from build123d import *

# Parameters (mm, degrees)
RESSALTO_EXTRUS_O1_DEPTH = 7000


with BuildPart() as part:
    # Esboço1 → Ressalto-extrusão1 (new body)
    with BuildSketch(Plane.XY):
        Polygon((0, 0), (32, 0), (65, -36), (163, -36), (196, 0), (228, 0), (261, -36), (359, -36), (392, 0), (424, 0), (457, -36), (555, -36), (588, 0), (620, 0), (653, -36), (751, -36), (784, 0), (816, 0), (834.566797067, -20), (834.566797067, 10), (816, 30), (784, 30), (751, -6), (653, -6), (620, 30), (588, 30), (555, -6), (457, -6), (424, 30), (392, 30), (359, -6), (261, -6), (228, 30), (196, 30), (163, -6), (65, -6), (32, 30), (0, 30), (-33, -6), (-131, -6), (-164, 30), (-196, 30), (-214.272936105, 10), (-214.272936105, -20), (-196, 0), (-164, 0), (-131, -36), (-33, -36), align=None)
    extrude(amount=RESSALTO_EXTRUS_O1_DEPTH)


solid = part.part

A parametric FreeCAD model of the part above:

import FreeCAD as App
import Part
import Sketcher
from FreeCAD import Vector
Q = App.Units.Quantity

doc = App.newDocument("Part")
body = doc.addObject("PartDesign::Body", "Body")

sketch1 = body.newObject("Sketcher::SketchObject", "Sketch")
sketch1.AttachmentSupport = (doc.getObject("XY_Plane"), [""])
sketch1.MapMode = "FlatFace"
sketch1.addGeometry([
    Part.LineSegment(Vector(0, 0, 0), Vector(32, 0, 0)),
    Part.LineSegment(Vector(32, 0, 0), Vector(65, -36, 0)),
    Part.LineSegment(Vector(65, -36, 0), Vector(163, -36, 0)),
    Part.LineSegment(Vector(163, -36, 0), Vector(196, 0, 0)),
    Part.LineSegment(Vector(196, 0, 0), Vector(228, 0, 0)),
    Part.LineSegment(Vector(228, 0, 0), Vector(261, -36, 0)),
    Part.LineSegment(Vector(261, -36, 0), Vector(359, -36, 0)),
    Part.LineSegment(Vector(359, -36, 0), Vector(392, 0, 0)),
    Part.LineSegment(Vector(392, 0, 0), Vector(424, 0, 0)),
    Part.LineSegment(Vector(424, 0, 0), Vector(457, -36, 0)),
    Part.LineSegment(Vector(457, -36, 0), Vector(555, -36, 0)),
    Part.LineSegment(Vector(555, -36, 0), Vector(588, 0, 0)),
    Part.LineSegment(Vector(588, 0, 0), Vector(620, 0, 0)),
    Part.LineSegment(Vector(620, 0, 0), Vector(653, -36, 0)),
    Part.LineSegment(Vector(653, -36, 0), Vector(751, -36, 0)),
    Part.LineSegment(Vector(751, -36, 0), Vector(784, 0, 0)),
    Part.LineSegment(Vector(784, 0, 0), Vector(816, 0, 0)),
    Part.LineSegment(Vector(816, 0, 0), Vector(835, -20, 0)),
    Part.LineSegment(Vector(835, -20, 0), Vector(835, 10, 0)),
    Part.LineSegment(Vector(835, 10, 0), Vector(816, 30, 0)),
    Part.LineSegment(Vector(816, 30, 0), Vector(784, 30, 0)),
    Part.LineSegment(Vector(784, 30, 0), Vector(751, -6, 0)),
    Part.LineSegment(Vector(751, -6, 0), Vector(653, -6, 0)),
    Part.LineSegment(Vector(653, -6, 0), Vector(620, 30, 0)),
    Part.LineSegment(Vector(620, 30, 0), Vector(588, 30, 0)),
    Part.LineSegment(Vector(588, 30, 0), Vector(555, -6, 0)),
    Part.LineSegment(Vector(555, -6, 0), Vector(457, -6, 0)),
    Part.LineSegment(Vector(457, -6, 0), Vector(424, 30, 0)),
    Part.LineSegment(Vector(424, 30, 0), Vector(392, 30, 0)),
    Part.LineSegment(Vector(392, 30, 0), Vector(359, -6, 0)),
    Part.LineSegment(Vector(359, -6, 0), Vector(261, -6, 0)),
    Part.LineSegment(Vector(261, -6, 0), Vector(228, 30, 0)),
    Part.LineSegment(Vector(228, 30, 0), Vector(196, 30, 0)),
    Part.LineSegment(Vector(196, 30, 0), Vector(163, -6, 0)),
    Part.LineSegment(Vector(163, -6, 0), Vector(65, -6, 0)),
    Part.LineSegment(Vector(65, -6, 0), Vector(32, 30, 0)),
    Part.LineSegment(Vector(32, 30, 0), Vector(0, 30, 0)),
    Part.LineSegment(Vector(0, 30, 0), Vector(-33, -6, 0)),
    Part.LineSegment(Vector(-33, -6, 0), Vector(-131, -6, 0)),
    Part.LineSegment(Vector(-131, -6, 0), Vector(-164, 30, 0)),
    Part.LineSegment(Vector(-164, 30, 0), Vector(-196, 30, 0)),
    Part.LineSegment(Vector(-196, 30, 0), Vector(-214, 10, 0)),
    Part.LineSegment(Vector(-214, 10, 0), Vector(-214, -20, 0)),
    Part.LineSegment(Vector(-214, -20, 0), Vector(-196, 0, 0)),
    Part.LineSegment(Vector(-196, 0, 0), Vector(-164, 0, 0)),
    Part.LineSegment(Vector(-164, 0, 0), Vector(-131, -36, 0)),
    Part.LineSegment(Vector(-131, -36, 0), Vector(-33, -36, 0)),
    Part.LineSegment(Vector(-33, -36, 0), Vector(0, 0, 0)),
], False)
sketch1.addConstraint([
    Sketcher.Constraint("Coincident", 0, 2, 1, 1),
    Sketcher.Constraint("Coincident", 1, 2, 2, 1),
    Sketcher.Constraint("Coincident", 2, 2, 3, 1),
    Sketcher.Constraint("Coincident", 3, 2, 4, 1),
    Sketcher.Constraint("Coincident", 4, 2, 5, 1),
    Sketcher.Constraint("Coincident", 5, 2, 6, 1),
    Sketcher.Constraint("Coincident", 6, 2, 7, 1),
    Sketcher.Constraint("Coincident", 7, 2, 8, 1),
    Sketcher.Constraint("Coincident", 8, 2, 9, 1),
    Sketcher.Constraint("Coincident", 9, 2, 10, 1),
    Sketcher.Constraint("Coincident", 10, 2, 11, 1),
    Sketcher.Constraint("Coincident", 11, 2, 12, 1),
    Sketcher.Constraint("Coincident", 12, 2, 13, 1),
    Sketcher.Constraint("Coincident", 13, 2, 14, 1),
    Sketcher.Constraint("Coincident", 14, 2, 15, 1),
    Sketcher.Constraint("Coincident", 15, 2, 16, 1),
    Sketcher.Constraint("Coincident", 16, 2, 17, 1),
    Sketcher.Constraint("Coincident", 17, 2, 18, 1),
    Sketcher.Constraint("Coincident", 18, 2, 19, 1),
    Sketcher.Constraint("Coincident", 19, 2, 20, 1),
    Sketcher.Constraint("Coincident", 20, 2, 21, 1),
    Sketcher.Constraint("Coincident", 21, 2, 22, 1),
    Sketcher.Constraint("Coincident", 22, 2, 23, 1),
    Sketcher.Constraint("Coincident", 23, 2, 24, 1),
    Sketcher.Constraint("Coincident", 24, 2, 25, 1),
    Sketcher.Constraint("Coincident", 25, 2, 26, 1),
    Sketcher.Constraint("Coincident", 26, 2, 27, 1),
    Sketcher.Constraint("Coincident", 27, 2, 28, 1),
    Sketcher.Constraint("Coincident", 28, 2, 29, 1),
    Sketcher.Constraint("Coincident", 29, 2, 30, 1),
    Sketcher.Constraint("Coincident", 30, 2, 31, 1),
    Sketcher.Constraint("Coincident", 31, 2, 32, 1),
    Sketcher.Constraint("Coincident", 32, 2, 33, 1),
    Sketcher.Constraint("Coincident", 33, 2, 34, 1),
    Sketcher.Constraint("Coincident", 34, 2, 35, 1),
    Sketcher.Constraint("Coincident", 35, 2, 36, 1),
    Sketcher.Constraint("Coincident", 36, 2, 37, 1),
    Sketcher.Constraint("Coincident", 37, 2, 38, 1),
    Sketcher.Constraint("Coincident", 38, 2, 39, 1),
    Sketcher.Constraint("Coincident", 39, 2, 40, 1),
    Sketcher.Constraint("Coincident", 40, 2, 41, 1),
    Sketcher.Constraint("Coincident", 41, 2, 42, 1),
    Sketcher.Constraint("Coincident", 42, 2, 43, 1),
    Sketcher.Constraint("Coincident", 43, 2, 44, 1),
    Sketcher.Constraint("Coincident", 44, 2, 45, 1),
    Sketcher.Constraint("Coincident", 45, 2, 46, 1),
    Sketcher.Constraint("Coincident", 46, 2, 47, 1),
    Sketcher.Constraint("Coincident", 47, 2, 0, 1),
    Sketcher.Constraint("Horizontal", 0),
    Sketcher.Constraint("Horizontal", 2),
    Sketcher.Constraint("Horizontal", 4),
    Sketcher.Constraint("Horizontal", 6),
    Sketcher.Constraint("Horizontal", 8),
    Sketcher.Constraint("Horizontal", 10),
    Sketcher.Constraint("Horizontal", 12),
    Sketcher.Constraint("Horizontal", 14),
    Sketcher.Constraint("Horizontal", 16),
    Sketcher.Constraint("Vertical", 18),
    Sketcher.Constraint("Horizontal", 20),
    Sketcher.Constraint("Horizontal", 22),
    Sketcher.Constraint("Horizontal", 24),
    Sketcher.Constraint("Horizontal", 26),
    Sketcher.Constraint("Horizontal", 28),
    Sketcher.Constraint("Horizontal", 30),
    Sketcher.Constraint("Horizontal", 32),
    Sketcher.Constraint("Horizontal", 34),
    Sketcher.Constraint("Horizontal", 36),
    Sketcher.Constraint("Horizontal", 38),
    Sketcher.Constraint("Horizontal", 40),
    Sketcher.Constraint("Vertical", 42),
    Sketcher.Constraint("Horizontal", 44),
    Sketcher.Constraint("Horizontal", 46),
    Sketcher.Constraint("Coincident", 47, 2, -1, 1),
    Sketcher.Constraint("Symmetric", 3, 2, 43, 2, -1, 1),
    Sketcher.Constraint("Symmetric", 32, 2, 40, 2, -2),
    Sketcher.Constraint("PointOnObject", 3, 2, -1),
    Sketcher.Constraint("PointOnObject", 7, 2, -1),
    Sketcher.Constraint("PointOnObject", 11, 2, -1),
    Sketcher.Constraint("PointOnObject", 15, 2, -1),
    Sketcher.Constraint("PointOnObject", 36, 2, -2),
    Sketcher.Constraint("Parallel", 1, 5),
    Sketcher.Constraint("Parallel", 3, 7),
    Sketcher.Constraint("Parallel", 5, 9),
    Sketcher.Constraint("Parallel", 7, 11),
    Sketcher.Constraint("Parallel", 9, 13),
    Sketcher.Constraint("Parallel", 11, 15),
    Sketcher.Constraint("Parallel", 17, 19),
    Sketcher.Constraint("Parallel", 15, 21),
    Sketcher.Constraint("Parallel", 13, 23),
    Sketcher.Constraint("Parallel", 21, 25),
    Sketcher.Constraint("Parallel", 23, 27),
    Sketcher.Constraint("Parallel", 25, 29),
    Sketcher.Constraint("Parallel", 27, 31),
    Sketcher.Constraint("Parallel", 29, 33),
    Sketcher.Constraint("Parallel", 31, 35),
    Sketcher.Constraint("Parallel", 33, 37),
    Sketcher.Constraint("Parallel", 35, 39),
    Sketcher.Constraint("Parallel", 41, 43),
    Sketcher.Constraint("Parallel", 39, 45),
    Sketcher.Constraint("Parallel", 37, 47),
    Sketcher.Constraint("Horizontal", 2, 2, 5, 2),
    Sketcher.Constraint("Horizontal", 6, 2, 9, 2),
    Sketcher.Constraint("Horizontal", 10, 2, 13, 2),
    Sketcher.Constraint("Horizontal", 20, 2, 23, 2),
    Sketcher.Constraint("Horizontal", 22, 2, 25, 2),
    Sketcher.Constraint("Horizontal", 24, 2, 27, 2),
    Sketcher.Constraint("Horizontal", 26, 2, 29, 2),
    Sketcher.Constraint("Horizontal", 28, 2, 31, 2),
    Sketcher.Constraint("Horizontal", 30, 2, 33, 2),
    Sketcher.Constraint("Horizontal", 32, 2, 35, 2),
    Sketcher.Constraint("Horizontal", 34, 2, 37, 2),
    Sketcher.Constraint("Horizontal", 18, 2, 41, 2),
    Sketcher.Constraint("Horizontal", 17, 2, 42, 2),
    Sketcher.Constraint("Horizontal", 14, 2, 45, 2),
    Sketcher.Constraint("Vertical", 16, 2, 19, 2),
    Sketcher.Constraint("Vertical", 15, 2, 20, 2),
    Sketcher.Constraint("Vertical", 14, 2, 21, 2),
    Sketcher.Constraint("Vertical", 13, 2, 22, 2),
    Sketcher.Constraint("Vertical", 11, 2, 24, 2),
    Sketcher.Constraint("Vertical", 9, 2, 26, 2),
    Sketcher.Constraint("Vertical", 7, 2, 28, 2),
    Sketcher.Constraint("Vertical", 5, 2, 30, 2),
    Sketcher.Constraint("Vertical", 1, 2, 34, 2),
    Sketcher.Constraint("Vertical", 39, 2, 44, 2),
    Sketcher.Constraint("Equal", 0, 4),
    Sketcher.Constraint("Equal", 2, 6),
    Sketcher.Constraint("Equal", 4, 8),
    Sketcher.Constraint("Equal", 6, 10),
    Sketcher.Constraint("Equal", 8, 12),
    Sketcher.Constraint("Equal", 10, 14),
    Sketcher.Constraint("Equal", 12, 16),
    Sketcher.Constraint("Equal", 34, 38),
    Sketcher.Constraint("Equal", 1, 3),
    Sketcher.Constraint("DistanceX", 0, 1, 0, 2, Q("32 mm")),
    Sketcher.Constraint("DistanceX", 2, 1, 2, 2, Q("98 mm")),
    Sketcher.Constraint("DistanceY", 18, 1, 18, 2, Q("30 mm")),
    Sketcher.Constraint("DistanceX", -1, 1, 1, 2, Q("65 mm")),
    Sketcher.Constraint("DistanceY", 1, 2, -1, 1, Q("36 mm")),
    Sketcher.Constraint("DistanceY", 17, 2, -1, 1, Q("20 mm")),
    Sketcher.Constraint("Distance", 17, Q("27.289668 mm")),
    Sketcher.Constraint("Distance", 41, Q("27.090592 mm")),
])
pad1 = body.newObject("PartDesign::Pad", "Pad")
pad1.Profile = sketch1
pad1.Length = 7000

doc.recompute()
